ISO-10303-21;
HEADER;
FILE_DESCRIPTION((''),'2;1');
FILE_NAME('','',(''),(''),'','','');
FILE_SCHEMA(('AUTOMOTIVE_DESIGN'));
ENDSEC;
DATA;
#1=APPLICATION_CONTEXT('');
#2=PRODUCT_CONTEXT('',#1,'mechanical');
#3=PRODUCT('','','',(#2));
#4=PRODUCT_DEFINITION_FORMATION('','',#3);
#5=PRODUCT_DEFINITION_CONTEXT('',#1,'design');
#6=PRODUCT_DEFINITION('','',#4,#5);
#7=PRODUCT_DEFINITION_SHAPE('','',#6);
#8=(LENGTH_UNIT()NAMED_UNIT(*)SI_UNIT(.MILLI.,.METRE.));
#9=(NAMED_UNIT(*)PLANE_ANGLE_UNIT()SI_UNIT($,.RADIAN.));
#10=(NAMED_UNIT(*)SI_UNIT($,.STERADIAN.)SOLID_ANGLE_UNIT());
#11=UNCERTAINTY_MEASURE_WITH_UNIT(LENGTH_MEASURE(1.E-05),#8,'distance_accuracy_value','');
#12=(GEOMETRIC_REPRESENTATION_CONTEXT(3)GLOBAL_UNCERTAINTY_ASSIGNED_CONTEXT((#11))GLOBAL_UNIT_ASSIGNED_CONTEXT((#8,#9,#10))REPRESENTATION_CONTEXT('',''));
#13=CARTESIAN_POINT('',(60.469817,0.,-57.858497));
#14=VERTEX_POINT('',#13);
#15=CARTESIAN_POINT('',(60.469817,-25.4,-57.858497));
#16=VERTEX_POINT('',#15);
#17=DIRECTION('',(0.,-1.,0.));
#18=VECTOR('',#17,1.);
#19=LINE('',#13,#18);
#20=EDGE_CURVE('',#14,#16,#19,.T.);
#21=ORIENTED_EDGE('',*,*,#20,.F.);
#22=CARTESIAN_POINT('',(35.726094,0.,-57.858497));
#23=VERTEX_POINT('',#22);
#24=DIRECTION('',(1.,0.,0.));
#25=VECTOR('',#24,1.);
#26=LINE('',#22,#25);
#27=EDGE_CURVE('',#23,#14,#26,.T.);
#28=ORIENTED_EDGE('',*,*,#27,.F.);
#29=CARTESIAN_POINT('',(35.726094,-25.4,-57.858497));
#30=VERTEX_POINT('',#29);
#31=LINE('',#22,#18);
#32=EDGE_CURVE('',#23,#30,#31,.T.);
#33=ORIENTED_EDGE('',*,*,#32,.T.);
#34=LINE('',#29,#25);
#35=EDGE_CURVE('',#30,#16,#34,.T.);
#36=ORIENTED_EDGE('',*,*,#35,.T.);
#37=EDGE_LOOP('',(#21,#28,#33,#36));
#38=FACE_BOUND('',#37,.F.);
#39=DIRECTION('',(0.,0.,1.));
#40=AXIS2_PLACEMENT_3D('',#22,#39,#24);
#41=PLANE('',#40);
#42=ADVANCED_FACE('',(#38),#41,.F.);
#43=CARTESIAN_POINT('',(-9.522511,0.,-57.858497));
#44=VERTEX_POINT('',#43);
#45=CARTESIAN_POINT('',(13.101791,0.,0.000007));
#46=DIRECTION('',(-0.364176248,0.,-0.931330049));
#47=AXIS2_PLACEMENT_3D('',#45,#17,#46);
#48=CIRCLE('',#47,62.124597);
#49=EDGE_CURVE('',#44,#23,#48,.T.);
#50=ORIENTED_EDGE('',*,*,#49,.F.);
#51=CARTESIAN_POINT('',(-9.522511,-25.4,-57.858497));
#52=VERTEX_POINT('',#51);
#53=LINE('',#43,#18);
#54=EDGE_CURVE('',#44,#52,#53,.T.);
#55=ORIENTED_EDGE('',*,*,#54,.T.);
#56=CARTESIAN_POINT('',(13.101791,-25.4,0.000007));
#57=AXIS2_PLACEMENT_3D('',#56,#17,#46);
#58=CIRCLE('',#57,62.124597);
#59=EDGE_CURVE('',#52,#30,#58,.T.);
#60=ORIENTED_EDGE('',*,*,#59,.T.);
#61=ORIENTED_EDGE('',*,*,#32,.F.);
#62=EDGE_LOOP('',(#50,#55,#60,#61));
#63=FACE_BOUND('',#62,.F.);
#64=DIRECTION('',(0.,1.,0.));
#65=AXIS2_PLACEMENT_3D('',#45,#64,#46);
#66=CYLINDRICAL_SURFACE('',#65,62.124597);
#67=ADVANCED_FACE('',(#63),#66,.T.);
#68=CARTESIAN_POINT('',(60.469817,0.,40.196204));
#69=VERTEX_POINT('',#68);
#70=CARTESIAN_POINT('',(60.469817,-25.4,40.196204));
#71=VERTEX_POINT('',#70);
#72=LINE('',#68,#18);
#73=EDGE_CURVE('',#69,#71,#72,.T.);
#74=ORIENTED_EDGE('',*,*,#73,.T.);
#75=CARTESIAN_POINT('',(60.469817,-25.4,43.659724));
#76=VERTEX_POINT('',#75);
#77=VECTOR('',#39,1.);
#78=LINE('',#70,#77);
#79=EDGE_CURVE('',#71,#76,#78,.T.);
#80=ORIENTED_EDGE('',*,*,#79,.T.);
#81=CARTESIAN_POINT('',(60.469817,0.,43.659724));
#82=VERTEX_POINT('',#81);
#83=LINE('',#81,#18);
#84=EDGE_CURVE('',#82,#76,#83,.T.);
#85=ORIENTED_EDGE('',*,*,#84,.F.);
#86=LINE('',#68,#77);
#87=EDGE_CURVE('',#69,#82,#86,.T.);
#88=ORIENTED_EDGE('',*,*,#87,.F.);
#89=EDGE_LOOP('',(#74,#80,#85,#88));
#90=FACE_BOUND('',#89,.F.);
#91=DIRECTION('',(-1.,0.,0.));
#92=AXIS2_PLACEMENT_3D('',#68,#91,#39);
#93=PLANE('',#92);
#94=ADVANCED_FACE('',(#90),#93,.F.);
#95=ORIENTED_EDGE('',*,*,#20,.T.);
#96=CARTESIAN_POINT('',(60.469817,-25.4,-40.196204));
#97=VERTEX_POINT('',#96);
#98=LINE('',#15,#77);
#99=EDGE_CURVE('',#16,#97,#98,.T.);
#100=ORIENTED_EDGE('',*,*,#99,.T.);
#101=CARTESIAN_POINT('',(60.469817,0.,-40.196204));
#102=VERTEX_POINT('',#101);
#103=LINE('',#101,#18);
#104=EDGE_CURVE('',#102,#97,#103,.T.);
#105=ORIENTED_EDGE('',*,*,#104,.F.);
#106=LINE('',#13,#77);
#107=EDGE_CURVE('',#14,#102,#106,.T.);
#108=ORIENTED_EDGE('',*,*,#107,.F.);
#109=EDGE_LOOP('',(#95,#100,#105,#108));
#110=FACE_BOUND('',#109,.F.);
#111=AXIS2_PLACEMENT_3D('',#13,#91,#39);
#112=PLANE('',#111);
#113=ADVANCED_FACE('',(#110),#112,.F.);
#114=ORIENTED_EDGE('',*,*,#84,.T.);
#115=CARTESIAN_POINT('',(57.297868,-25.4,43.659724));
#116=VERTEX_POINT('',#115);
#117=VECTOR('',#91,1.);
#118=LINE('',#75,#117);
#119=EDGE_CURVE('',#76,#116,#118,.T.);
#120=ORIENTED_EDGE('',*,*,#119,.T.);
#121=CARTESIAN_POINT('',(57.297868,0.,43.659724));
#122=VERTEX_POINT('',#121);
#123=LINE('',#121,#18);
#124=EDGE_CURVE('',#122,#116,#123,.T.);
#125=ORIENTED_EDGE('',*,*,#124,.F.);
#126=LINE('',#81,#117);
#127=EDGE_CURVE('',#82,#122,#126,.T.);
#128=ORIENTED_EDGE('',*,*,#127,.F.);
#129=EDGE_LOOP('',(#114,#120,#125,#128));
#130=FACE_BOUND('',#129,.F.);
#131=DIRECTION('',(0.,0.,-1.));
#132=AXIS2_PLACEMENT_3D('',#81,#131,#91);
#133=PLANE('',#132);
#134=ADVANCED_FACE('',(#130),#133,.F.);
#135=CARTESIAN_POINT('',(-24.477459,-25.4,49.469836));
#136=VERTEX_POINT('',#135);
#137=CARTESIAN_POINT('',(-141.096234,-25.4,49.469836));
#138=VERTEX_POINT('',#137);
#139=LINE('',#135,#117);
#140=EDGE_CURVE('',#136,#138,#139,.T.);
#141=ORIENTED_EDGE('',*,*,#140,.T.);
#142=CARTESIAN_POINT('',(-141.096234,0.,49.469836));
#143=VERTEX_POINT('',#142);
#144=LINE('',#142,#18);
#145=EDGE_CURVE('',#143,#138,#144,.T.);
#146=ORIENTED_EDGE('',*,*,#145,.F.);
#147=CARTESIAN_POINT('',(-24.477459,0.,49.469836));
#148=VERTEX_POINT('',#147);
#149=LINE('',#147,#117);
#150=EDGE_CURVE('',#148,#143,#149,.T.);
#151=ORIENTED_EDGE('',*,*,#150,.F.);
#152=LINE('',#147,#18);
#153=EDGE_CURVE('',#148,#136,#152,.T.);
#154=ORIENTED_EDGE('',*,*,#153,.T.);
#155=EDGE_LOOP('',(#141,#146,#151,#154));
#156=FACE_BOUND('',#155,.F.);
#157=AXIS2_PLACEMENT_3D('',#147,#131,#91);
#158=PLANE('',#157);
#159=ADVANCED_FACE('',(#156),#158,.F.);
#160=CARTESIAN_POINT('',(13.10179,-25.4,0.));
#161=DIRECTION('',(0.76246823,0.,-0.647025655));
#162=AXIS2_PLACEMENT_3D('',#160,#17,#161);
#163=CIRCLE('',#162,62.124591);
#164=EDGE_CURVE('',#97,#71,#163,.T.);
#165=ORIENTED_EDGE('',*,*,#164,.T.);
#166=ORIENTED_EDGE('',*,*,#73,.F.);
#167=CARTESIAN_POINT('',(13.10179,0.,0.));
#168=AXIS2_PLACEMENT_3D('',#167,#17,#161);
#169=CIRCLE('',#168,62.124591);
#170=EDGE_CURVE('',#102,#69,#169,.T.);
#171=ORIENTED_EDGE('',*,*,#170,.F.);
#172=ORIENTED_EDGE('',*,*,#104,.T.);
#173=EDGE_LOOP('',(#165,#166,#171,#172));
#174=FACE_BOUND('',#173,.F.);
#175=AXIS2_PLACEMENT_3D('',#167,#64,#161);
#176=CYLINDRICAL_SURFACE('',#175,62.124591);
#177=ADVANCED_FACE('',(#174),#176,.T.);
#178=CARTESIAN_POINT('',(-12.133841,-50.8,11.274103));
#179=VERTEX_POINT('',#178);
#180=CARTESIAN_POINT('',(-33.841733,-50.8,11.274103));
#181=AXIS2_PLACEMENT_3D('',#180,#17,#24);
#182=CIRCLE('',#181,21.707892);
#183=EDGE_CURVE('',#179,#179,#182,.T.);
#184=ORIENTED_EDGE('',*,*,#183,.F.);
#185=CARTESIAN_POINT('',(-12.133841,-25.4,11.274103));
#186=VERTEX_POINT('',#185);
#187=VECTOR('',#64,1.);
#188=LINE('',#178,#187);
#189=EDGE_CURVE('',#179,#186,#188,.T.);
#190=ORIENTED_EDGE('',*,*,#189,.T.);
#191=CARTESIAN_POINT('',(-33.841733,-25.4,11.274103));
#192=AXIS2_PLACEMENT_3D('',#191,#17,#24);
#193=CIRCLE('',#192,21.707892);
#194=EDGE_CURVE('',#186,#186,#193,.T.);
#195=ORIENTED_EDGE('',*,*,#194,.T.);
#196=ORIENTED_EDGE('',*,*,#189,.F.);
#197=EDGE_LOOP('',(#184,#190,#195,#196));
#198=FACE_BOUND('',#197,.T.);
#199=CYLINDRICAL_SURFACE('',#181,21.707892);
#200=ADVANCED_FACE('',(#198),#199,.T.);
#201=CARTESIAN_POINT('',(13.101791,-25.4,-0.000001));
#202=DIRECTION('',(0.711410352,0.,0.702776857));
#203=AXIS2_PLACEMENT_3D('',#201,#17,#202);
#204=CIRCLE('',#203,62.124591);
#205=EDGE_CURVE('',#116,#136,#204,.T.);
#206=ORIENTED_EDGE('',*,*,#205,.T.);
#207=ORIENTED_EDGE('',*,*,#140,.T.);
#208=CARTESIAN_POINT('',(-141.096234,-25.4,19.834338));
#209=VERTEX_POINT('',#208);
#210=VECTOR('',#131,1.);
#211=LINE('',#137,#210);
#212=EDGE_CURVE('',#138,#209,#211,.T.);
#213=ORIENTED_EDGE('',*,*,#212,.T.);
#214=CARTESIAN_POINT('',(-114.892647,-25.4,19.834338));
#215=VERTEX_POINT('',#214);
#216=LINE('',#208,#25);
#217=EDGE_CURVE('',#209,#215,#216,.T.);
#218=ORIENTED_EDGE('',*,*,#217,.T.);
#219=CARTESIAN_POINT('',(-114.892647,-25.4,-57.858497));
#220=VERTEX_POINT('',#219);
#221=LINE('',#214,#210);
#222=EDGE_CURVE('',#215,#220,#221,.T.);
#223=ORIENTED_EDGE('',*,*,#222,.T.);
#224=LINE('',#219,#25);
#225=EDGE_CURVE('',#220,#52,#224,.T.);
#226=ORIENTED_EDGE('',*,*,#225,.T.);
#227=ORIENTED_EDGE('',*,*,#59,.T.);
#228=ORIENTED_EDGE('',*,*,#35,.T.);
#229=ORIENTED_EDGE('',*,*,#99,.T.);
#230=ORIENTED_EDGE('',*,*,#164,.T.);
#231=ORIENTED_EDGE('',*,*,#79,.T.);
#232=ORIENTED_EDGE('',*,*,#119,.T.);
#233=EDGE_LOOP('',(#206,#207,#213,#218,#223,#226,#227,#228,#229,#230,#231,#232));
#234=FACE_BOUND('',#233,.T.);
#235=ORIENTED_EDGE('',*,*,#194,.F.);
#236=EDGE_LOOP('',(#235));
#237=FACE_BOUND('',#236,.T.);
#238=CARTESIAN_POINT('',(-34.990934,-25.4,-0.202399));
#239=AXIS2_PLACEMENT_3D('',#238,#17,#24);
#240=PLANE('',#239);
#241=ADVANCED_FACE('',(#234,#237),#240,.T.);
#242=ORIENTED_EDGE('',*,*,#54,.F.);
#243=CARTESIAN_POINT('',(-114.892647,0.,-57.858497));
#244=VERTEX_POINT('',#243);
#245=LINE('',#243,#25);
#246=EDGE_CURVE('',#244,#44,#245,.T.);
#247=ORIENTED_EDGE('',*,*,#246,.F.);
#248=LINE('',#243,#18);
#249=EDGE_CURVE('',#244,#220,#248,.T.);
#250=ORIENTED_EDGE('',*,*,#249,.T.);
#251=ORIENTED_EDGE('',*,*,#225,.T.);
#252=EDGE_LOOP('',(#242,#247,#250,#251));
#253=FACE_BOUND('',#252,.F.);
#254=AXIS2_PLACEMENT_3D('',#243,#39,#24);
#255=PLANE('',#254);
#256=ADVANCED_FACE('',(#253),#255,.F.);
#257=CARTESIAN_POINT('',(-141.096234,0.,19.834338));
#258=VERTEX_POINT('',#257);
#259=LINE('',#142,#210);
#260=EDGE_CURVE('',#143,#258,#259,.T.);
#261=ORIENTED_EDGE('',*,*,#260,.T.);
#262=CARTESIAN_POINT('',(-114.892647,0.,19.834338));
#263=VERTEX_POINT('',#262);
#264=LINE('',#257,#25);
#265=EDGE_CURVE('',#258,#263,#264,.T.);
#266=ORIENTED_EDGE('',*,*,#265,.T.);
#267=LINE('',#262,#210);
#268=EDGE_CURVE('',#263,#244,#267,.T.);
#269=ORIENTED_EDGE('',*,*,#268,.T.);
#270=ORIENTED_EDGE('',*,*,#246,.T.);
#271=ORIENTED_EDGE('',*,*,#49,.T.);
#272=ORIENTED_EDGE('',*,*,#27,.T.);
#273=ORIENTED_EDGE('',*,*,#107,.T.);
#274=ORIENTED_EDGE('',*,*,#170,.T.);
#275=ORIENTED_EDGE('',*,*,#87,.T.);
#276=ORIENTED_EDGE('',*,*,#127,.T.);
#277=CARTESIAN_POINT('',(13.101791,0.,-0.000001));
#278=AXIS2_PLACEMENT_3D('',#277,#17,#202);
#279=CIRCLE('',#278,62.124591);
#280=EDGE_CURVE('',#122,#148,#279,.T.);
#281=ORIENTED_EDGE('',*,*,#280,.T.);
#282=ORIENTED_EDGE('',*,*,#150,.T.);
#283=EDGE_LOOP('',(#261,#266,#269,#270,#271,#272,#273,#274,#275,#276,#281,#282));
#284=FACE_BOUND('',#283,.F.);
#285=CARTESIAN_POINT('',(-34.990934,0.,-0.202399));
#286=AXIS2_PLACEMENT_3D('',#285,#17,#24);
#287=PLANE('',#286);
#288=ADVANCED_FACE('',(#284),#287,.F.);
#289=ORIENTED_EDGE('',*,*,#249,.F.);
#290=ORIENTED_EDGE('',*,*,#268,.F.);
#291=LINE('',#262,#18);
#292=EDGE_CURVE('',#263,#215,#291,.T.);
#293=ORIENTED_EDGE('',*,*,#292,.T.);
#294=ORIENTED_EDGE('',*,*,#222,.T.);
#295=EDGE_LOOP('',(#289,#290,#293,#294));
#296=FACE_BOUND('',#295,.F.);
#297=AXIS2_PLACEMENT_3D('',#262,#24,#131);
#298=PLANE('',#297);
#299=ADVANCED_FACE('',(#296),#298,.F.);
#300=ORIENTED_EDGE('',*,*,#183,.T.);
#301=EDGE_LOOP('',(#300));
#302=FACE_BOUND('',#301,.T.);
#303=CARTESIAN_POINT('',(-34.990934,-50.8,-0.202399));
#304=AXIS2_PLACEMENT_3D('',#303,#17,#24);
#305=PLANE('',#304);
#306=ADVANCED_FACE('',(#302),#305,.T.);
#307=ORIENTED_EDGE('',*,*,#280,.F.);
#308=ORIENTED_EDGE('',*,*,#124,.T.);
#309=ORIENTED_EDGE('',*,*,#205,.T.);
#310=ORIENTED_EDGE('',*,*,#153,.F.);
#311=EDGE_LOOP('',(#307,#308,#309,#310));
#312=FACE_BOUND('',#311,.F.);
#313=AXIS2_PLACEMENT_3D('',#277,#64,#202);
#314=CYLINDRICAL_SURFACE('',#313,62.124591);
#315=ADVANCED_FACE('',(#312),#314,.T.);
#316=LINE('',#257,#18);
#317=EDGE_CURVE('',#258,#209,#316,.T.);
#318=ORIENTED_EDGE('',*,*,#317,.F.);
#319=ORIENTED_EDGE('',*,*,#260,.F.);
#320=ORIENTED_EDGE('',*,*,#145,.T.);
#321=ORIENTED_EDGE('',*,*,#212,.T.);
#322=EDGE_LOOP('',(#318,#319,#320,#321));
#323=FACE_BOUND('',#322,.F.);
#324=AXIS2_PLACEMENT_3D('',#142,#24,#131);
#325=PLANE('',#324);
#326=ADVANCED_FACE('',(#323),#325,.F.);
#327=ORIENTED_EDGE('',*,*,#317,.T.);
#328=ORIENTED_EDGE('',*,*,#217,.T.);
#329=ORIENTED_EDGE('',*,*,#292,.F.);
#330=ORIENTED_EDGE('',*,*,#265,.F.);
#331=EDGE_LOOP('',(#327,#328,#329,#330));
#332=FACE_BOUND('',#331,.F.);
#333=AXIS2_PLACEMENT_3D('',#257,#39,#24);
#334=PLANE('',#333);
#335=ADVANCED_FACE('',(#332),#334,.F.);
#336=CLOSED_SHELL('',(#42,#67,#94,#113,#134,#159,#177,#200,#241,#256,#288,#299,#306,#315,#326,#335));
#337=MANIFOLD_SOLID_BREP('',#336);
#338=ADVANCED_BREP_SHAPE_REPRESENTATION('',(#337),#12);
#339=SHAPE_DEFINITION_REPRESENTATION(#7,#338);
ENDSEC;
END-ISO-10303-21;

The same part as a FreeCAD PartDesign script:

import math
import FreeCAD as App
import Part
import Sketcher

V = App.Vector
Q = App.Units.Quantity

doc = App.newDocument("Part")
body = doc.addObject("PartDesign::Body", "Body")

sketch1 = body.newObject("Sketcher::SketchObject", "Sketch")
sketch1.AttachmentSupport = (doc.getObject("XZ_Plane"), [""])
sketch1.MapMode = "FlatFace"
sketch1.addGeometry([
    Part.LineSegment(V(-114.9, 19.8, 0), V(-114.9, -57.9, 0)),
    Part.LineSegment(V(-114.9, -57.9, 0), V(-9.5, -57.9, 0)),
    Part.ArcOfCircle(Part.Circle(V(13.1, 0, 0), V(0, 0, 1), 62.1), math.radians(-111), math.radians(-69)),
    Part.LineSegment(V(35.7, -57.9, 0), V(60.5, -57.9, 0)),
    Part.LineSegment(V(60.5, -57.9, 0), V(60.5, -40.2, 0)),
    Part.ArcOfCircle(Part.Circle(V(13.1, 0, 0), V(0, 0, 1), 62.1), math.radians(-40), math.radians(40)),
    Part.LineSegment(V(60.5, 40.2, 0), V(60.5, 43.7, 0)),
    Part.LineSegment(V(60.5, 43.7, 0), V(57.3, 43.7, 0)),
    Part.ArcOfCircle(Part.Circle(V(13.1, 0, 0), V(0, 0, 1), 62.1), math.radians(45), math.radians(127)),
    Part.LineSegment(V(-24.5, 49.5, 0), V(-141.1, 49.5, 0)),
    Part.LineSegment(V(-141.1, 49.5, 0), V(-141.1, 19.8, 0)),
    Part.LineSegment(V(-141.1, 19.8, 0), V(-114.9, 19.8, 0)),
], False)
sketch1.addConstraint([
    Sketcher.Constraint("Coincident", 0, 2, 1, 1),
    Sketcher.Constraint("Coincident", 1, 2, 2, 1),
    Sketcher.Constraint("Coincident", 2, 2, 3, 1),
    Sketcher.Constraint("Coincident", 3, 2, 4, 1),
    Sketcher.Constraint("Coincident", 4, 2, 5, 1),
    Sketcher.Constraint("Coincident", 5, 2, 6, 1),
    Sketcher.Constraint("Coincident", 6, 2, 7, 1),
    Sketcher.Constraint("Coincident", 7, 2, 8, 1),
    Sketcher.Constraint("Coincident", 8, 2, 9, 1),
    Sketcher.Constraint("Coincident", 9, 2, 10, 1),
    Sketcher.Constraint("Coincident", 10, 2, 11, 1),
    Sketcher.Constraint("Coincident", 11, 2, 0, 1),
    Sketcher.Constraint("Vertical", 0),
    Sketcher.Constraint("Horizontal", 1),
    Sketcher.Constraint("Horizontal", 3),
    Sketcher.Constraint("Vertical", 4),
    Sketcher.Constraint("Vertical", 6),
    Sketcher.Constraint("Horizontal", 7),
    Sketcher.Constraint("Horizontal", 9),
    Sketcher.Constraint("Vertical", 10),
    Sketcher.Constraint("Horizontal", 11),
    Sketcher.Constraint("Coincident", 5, 3, 2, 3),
    Sketcher.Constraint("Coincident", 8, 3, 2, 3),
    Sketcher.Constraint("Equal", 5, 8),
    Sketcher.Constraint("Symmetric", 4, 2, 5, 2, -1),
    Sketcher.Constraint("Horizontal", 1, 2, 2, 2),
    Sketcher.Constraint("Radius", 5, 62.124591),
    Sketcher.Constraint("DistanceY", 10, 2, 10, 1, 29.635498),
    Sketcher.Constraint("Radius", 2, 62.124597),
    Sketcher.Constraint("DistanceX", 7, 2, 7, 1, 3.171949),
    Sketcher.Constraint("DistanceY", 6, 1, 6, 2, 3.46352),
    Sketcher.Constraint("DistanceX", 1, 2, 5, 3, 22.624301),
    Sketcher.Constraint("DistanceX", 1, 1, 1, 2, 105.370136),
    Sketcher.Constraint("DistanceX", 9, 2, 9, 1, 116.618775),
    Sketcher.Constraint("DistanceX", 11, 1, 11, 2, 26.203587),
    Sketcher.Constraint("DistanceX", -1, 1, 2, 3, 13.101791),
])
pad1 = body.newObject("PartDesign::Pad", "Pad")
pad1.Profile = sketch1
pad1.Length = Q("2 in")

sketch2 = body.newObject("Sketcher::SketchObject", "Sketch001")
sketch2.AttachmentSupport = (doc.getObject("XZ_Plane"), [""])
sketch2.MapMode = "FlatFace"
sketch2.AttachmentOffset = App.Placement(V(0, 0, 2 * 25.4), App.Rotation())
sketch2.addGeometry([
    Part.ArcOfCircle(Part.Circle(V(13.1, 0, 0), V(0, 0, 1), 62.1), math.radians(45), math.radians(127)),
    Part.LineSegment(V(-24.5, 49.5, 0), V(-141.1, 49.5, 0)),
    Part.LineSegment(V(-141.1, 49.5, 0), V(-141.1, 19.8, 0)),
    Part.LineSegment(V(-141.1, 19.8, 0), V(-114.9, 19.8, 0)),
    Part.LineSegment(V(-114.9, 19.8, 0), V(-114.9, -57.9, 0)),
    Part.LineSegment(V(-114.9, -57.9, 0), V(-9.5, -57.9, 0)),
    Part.ArcOfCircle(Part.Circle(V(13.1, 0, 0), V(0, 0, 1), 62.1), math.radians(-111), math.radians(-69)),
    Part.LineSegment(V(35.7, -57.9, 0), V(60.5, -57.9, 0)),
    Part.LineSegment(V(60.5, -57.9, 0), V(60.5, -40.2, 0)),
    Part.ArcOfCircle(Part.Circle(V(13.1, 0, 0), V(0, 0, 1), 62.1), math.radians(-40), math.radians(40)),
    Part.LineSegment(V(60.5, 40.2, 0), V(60.5, 43.7, 0)),
    Part.LineSegment(V(60.5, 43.7, 0), V(57.3, 43.7, 0)),
    Part.Circle(V(-33.8, 11.3, 0), V(0, 0, 1), 21.7),
], False)
sketch2.addConstraint([
    Sketcher.Constraint("Coincident", 0, 2, 1, 1),
    Sketcher.Constraint("Coincident", 1, 2, 2, 1),
    Sketcher.Constraint("Coincident", 2, 2, 3, 1),
    Sketcher.Constraint("Coincident", 3, 2, 4, 1),
    Sketcher.Constraint("Coincident", 4, 2, 5, 1),
    Sketcher.Constraint("Coincident", 5, 2, 6, 1),
    Sketcher.Constraint("Coincident", 6, 2, 7, 1),
    Sketcher.Constraint("Coincident", 7, 2, 8, 1),
    Sketcher.Constraint("Coincident", 8, 2, 9, 1),
    Sketcher.Constraint("Coincident", 9, 2, 10, 1),
    Sketcher.Constraint("Coincident", 10, 2, 11, 1),
    Sketcher.Constraint("Coincident", 11, 2, 0, 1),
    Sketcher.Constraint("Horizontal", 1),
    Sketcher.Constraint("Vertical", 2),
    Sketcher.Constraint("Horizontal", 3),
    Sketcher.Constraint("Vertical", 4),
    Sketcher.Constraint("Horizontal", 5),
    Sketcher.Constraint("Horizontal", 7),
    Sketcher.Constraint("Vertical", 8),
    Sketcher.Constraint("Vertical", 10),
    Sketcher.Constraint("Horizontal", 11),
    Sketcher.Constraint("Coincident", 6, 3, 0, 3),
    Sketcher.Constraint("Coincident", 9, 3, 0, 3),
    Sketcher.Constraint("Equal", 0, 9),
    Sketcher.Constraint("Symmetric", 8, 2, 9, 2, -1),
    Sketcher.Constraint("Horizontal", 5, 2, 6, 2),
    Sketcher.Constraint("Radius", 0, 62.124591),
    Sketcher.Constraint("Diameter", 12, 43.415784),
    Sketcher.Constraint("DistanceY", 2, 2, 2, 1, 29.635498),
    Sketcher.Constraint("Radius", 6, 62.124597),
    Sketcher.Constraint("DistanceX", 11, 2, 11, 1, 3.171949),
    Sketcher.Constraint("DistanceY", 10, 1, 10, 2, 3.46352),
    Sketcher.Constraint("DistanceX", 1, 2, 12, 3, 107.254501),
    Sketcher.Constraint("DistanceY", 4, 2, 12, 3, 69.1326),
    Sketcher.Constraint("DistanceX", 5, 2, 9, 3, 22.624301),
    Sketcher.Constraint("DistanceX", 1, 2, 1, 1, 116.618775),
    Sketcher.Constraint("DistanceX", 3, 1, 3, 2, 26.203587),
    Sketcher.Constraint("DistanceX", 5, 1, 5, 2, 105.370136),
    Sketcher.Constraint("DistanceX", -1, 1, 0, 3, 13.101791),
])
pocket1 = body.newObject("PartDesign::Pocket", "Pocket")
pocket1.Profile = sketch2
pocket1.Length = Q("1 in")

doc.recompute()
